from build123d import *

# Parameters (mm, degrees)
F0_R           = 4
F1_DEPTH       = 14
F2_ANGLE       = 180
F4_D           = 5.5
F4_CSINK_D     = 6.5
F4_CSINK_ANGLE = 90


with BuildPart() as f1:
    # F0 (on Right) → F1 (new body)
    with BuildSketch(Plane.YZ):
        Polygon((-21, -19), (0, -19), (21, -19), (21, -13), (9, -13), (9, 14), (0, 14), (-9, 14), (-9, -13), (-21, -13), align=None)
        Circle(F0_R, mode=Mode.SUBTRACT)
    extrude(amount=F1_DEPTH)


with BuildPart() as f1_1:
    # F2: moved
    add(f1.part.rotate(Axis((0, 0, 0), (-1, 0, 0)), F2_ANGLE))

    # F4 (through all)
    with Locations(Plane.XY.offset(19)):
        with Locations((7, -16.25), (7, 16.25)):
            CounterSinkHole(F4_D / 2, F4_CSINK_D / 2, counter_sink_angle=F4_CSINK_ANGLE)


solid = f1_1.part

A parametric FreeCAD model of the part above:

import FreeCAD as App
import Part
import Sketcher
Q = App.Units.Quantity

doc = App.newDocument("Part")
body = doc.addObject("PartDesign::Body", "Body")

sketch1 = body.newObject("Sketcher::SketchObject", "Sketch")
sketch1.AttachmentSupport = (doc.getObject("YZ_Plane"), [""])
sketch1.MapMode = "FlatFace"
sketch1.addGeometry(Part.LineSegment(App.Vector(-21, -19, 0), App.Vector(21, -19, 0)), False)
sketch1.addGeometry(Part.LineSegment(App.Vector(21, -19, 0), App.Vector(21, -13, 0)), False)
sketch1.addGeometry(Part.LineSegment(App.Vector(21, -13, 0), App.Vector(9, -13, 0)), False)
sketch1.addGeometry(Part.LineSegment(App.Vector(9, -13, 0), App.Vector(9, 14, 0)), False)
sketch1.addGeometry(Part.LineSegment(App.Vector(9, 14, 0), App.Vector(-9, 14, 0)), False)
sketch1.addGeometry(Part.LineSegment(App.Vector(-9, 14, 0), App.Vector(-9, -13, 0)), False)
sketch1.addGeometry(Part.LineSegment(App.Vector(-9, -13, 0), App.Vector(-21, -13, 0)), False)
sketch1.addGeometry(Part.LineSegment(App.Vector(-21, -13, 0), App.Vector(-21, -19, 0)), False)
sketch1.addGeometry(Part.Circle(App.Vector(0, 0, 0), App.Vector(0, 0, 1), 4), False)
sketch1.addConstraint(Sketcher.Constraint("Coincident", 0, 2, 1, 1))
sketch1.addConstraint(Sketcher.Constraint("Coincident", 1, 2, 2, 1))
sketch1.addConstraint(Sketcher.Constraint("Coincident", 2, 2, 3, 1))
sketch1.addConstraint(Sketcher.Constraint("Coincident", 3, 2, 4, 1))
sketch1.addConstraint(Sketcher.Constraint("Coincident", 4, 2, 5, 1))
sketch1.addConstraint(Sketcher.Constraint("Coincident", 5, 2, 6, 1))
sketch1.addConstraint(Sketcher.Constraint("Coincident", 6, 2, 7, 1))
sketch1.addConstraint(Sketcher.Constraint("Coincident", 7, 2, 0, 1))
sketch1.addConstraint(Sketcher.Constraint("Horizontal", 0))
sketch1.addConstraint(Sketcher.Constraint("Vertical", 1))
sketch1.addConstraint(Sketcher.Constraint("Horizontal", 2))
sketch1.addConstraint(Sketcher.Constraint("Vertical", 3))
sketch1.addConstraint(Sketcher.Constraint("Horizontal", 4))
sketch1.addConstraint(Sketcher.Constraint("Vertical", 5))
sketch1.addConstraint(Sketcher.Constraint("Horizontal", 6))
sketch1.addConstraint(Sketcher.Constraint("Vertical", 7))
sketch1.addConstraint(Sketcher.Constraint("Coincident", 8, 3, -1, 1))
sketch1.addConstraint(Sketcher.Constraint("Symmetric", 2, 2, 5, 2, -2))
sketch1.addConstraint(Sketcher.Constraint("Equal", 2, 6))
sketch1.addConstraint(Sketcher.Constraint("Diameter", 8, Q("8 mm")))
sketch1.addConstraint(Sketcher.Constraint("DistanceX", 0, 1, 0, 2, Q("42 mm")))
sketch1.addConstraint(Sketcher.Constraint("DistanceX", 2, 2, 2, 1, Q("12 mm")))
sketch1.addConstraint(Sketcher.Constraint("DistanceY", 1, 1, 1, 2, Q("6 mm")))
sketch1.addConstraint(Sketcher.Constraint("DistanceY", 3, 1, 3, 2, Q("27 mm")))
sketch1.addConstraint(Sketcher.Constraint("DistanceY", 0, 2, -1, 1, Q("19 mm")))
pad1 = body.newObject("PartDesign::Pad", "Pad")
pad1.Profile = sketch1
pad1.Length = 14
body2 = doc.addObject("PartDesign::Body", "Body001")
doc.recompute()

body.Placement = App.Placement(App.Vector(0, 0, 0), App.Rotation(App.Vector(-1, 0, 0), 180))
boolean = body2.newObject("PartDesign::Boolean", "Boolean")
boolean.Type = "Fuse"
boolean.addObjects([body])

sketch2 = body2.newObject("Sketcher::SketchObject", "Sketch001")
sketch2.AttachmentSupport = (doc.getObject("XY_Plane001"), [""])
sketch2.MapMode = "FlatFace"
sketch2.AttachmentOffset = App.Placement(App.Vector(0, 0, 19), App.Rotation())
sketch2.addGeometry(Part.Circle(App.Vector(7, -16.2, 0), App.Vector(0, 0, 1), 2.8), False)
sketch2.addGeometry(Part.Circle(App.Vector(7, 16.2, 0), App.Vector(0, 0, 1), 2.8), False)
sketch2.addConstraint(Sketcher.Constraint("Equal", 0, 1))
sketch2.addConstraint(Sketcher.Constraint("Symmetric", 0, 3, 1, 3, -1))
sketch2.addConstraint(Sketcher.Constraint("Diameter", 0, Q("5.5 mm")))
sketch2.addConstraint(Sketcher.Constraint("DistanceX", -1, 1, 0, 3, Q("7 mm")))
sketch2.addConstraint(Sketcher.Constraint("DistanceY", 0, 3, 1, 3, Q("32.5 mm")))
doc.recompute()
hole = body2.newObject("PartDesign::Hole", "Hole")
hole.Profile = sketch2
hole.ThreadType = "None"
hole.Diameter = 5.5
hole.DepthType = "ThroughAll"
hole.HoleCutType = "Countersink"
hole.HoleCutDiameter = 6.5
hole.HoleCutCountersinkAngle = 90

doc.recompute()
